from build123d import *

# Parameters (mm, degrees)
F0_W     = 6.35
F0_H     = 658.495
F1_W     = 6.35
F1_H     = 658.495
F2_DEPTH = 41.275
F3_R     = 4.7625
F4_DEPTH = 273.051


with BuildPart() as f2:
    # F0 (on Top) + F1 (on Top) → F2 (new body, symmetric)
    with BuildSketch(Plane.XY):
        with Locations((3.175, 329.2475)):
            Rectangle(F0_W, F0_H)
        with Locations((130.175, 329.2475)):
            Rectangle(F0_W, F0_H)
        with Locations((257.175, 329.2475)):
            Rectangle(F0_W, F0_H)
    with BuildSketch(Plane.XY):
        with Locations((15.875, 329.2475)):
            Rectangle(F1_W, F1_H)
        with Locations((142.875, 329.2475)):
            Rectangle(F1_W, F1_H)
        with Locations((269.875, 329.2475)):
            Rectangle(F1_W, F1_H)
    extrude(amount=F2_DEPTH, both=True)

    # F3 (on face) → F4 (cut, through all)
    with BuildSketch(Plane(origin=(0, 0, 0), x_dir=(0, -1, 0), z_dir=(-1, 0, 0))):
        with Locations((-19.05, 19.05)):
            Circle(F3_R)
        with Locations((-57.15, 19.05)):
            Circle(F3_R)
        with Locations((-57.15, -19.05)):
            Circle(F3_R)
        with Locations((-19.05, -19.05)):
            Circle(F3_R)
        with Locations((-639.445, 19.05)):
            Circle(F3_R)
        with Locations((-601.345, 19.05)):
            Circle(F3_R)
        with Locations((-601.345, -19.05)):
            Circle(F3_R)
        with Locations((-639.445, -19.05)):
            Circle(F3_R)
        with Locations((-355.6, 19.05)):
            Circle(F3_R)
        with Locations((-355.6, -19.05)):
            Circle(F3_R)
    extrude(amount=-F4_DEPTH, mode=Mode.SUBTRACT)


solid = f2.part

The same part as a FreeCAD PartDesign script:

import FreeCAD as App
import Part
import Sketcher

V = App.Vector
Q = App.Units.Quantity

doc = App.newDocument("Part")
body = doc.addObject("PartDesign::Body", "Body")
body.AllowCompound = True

# Sketch on XY plane
sketch1 = body.newObject("Sketcher::SketchObject", "Sketch")
sketch1.AttachmentSupport = (doc.getObject("XY_Plane"), [""])
sketch1.MapMode = "FlatFace"
sketch1.addGeometry(Part.LineSegment(V(0, 658, 0), V(0, 0, 0)), False)
sketch1.addGeometry(Part.LineSegment(V(0, 0, 0), V(6, 0, 0)), False)
sketch1.addGeometry(Part.LineSegment(V(6, 0, 0), V(6, 658, 0)), False)
sketch1.addGeometry(Part.LineSegment(V(6, 658, 0), V(0, 658, 0)), False)
sketch1.addGeometry(Part.LineSegment(V(127, 658, 0), V(127, 0, 0)), False)
sketch1.addGeometry(Part.LineSegment(V(127, 0, 0), V(133, 0, 0)), False)
sketch1.addGeometry(Part.LineSegment(V(133, 0, 0), V(133, 658, 0)), False)
sketch1.addGeometry(Part.LineSegment(V(133, 658, 0), V(127, 658, 0)), False)
sketch1.addGeometry(Part.LineSegment(V(254, 658, 0), V(254, 0, 0)), False)
sketch1.addGeometry(Part.LineSegment(V(254, 0, 0), V(260, 0, 0)), False)
sketch1.addGeometry(Part.LineSegment(V(260, 0, 0), V(260, 658, 0)), False)
sketch1.addGeometry(Part.LineSegment(V(260, 658, 0), V(254, 658, 0)), False)
sketch1.addGeometry(Part.LineSegment(V(13, 658, 0), V(13, 0, 0)), False)
sketch1.addGeometry(Part.LineSegment(V(13, 0, 0), V(19, 0, 0)), False)
sketch1.addGeometry(Part.LineSegment(V(19, 0, 0), V(19, 658, 0)), False)
sketch1.addGeometry(Part.LineSegment(V(19, 658, 0), V(13, 658, 0)), False)
sketch1.addGeometry(Part.LineSegment(V(140, 658, 0), V(140, 0, 0)), False)
sketch1.addGeometry(Part.LineSegment(V(140, 0, 0), V(146, 0, 0)), False)
sketch1.addGeometry(Part.LineSegment(V(146, 0, 0), V(146, 658, 0)), False)
sketch1.addGeometry(Part.LineSegment(V(146, 658, 0), V(140, 658, 0)), False)
sketch1.addGeometry(Part.LineSegment(V(267, 658, 0), V(267, 0, 0)), False)
sketch1.addGeometry(Part.LineSegment(V(267, 0, 0), V(273, 0, 0)), False)
sketch1.addGeometry(Part.LineSegment(V(273, 0, 0), V(273, 658, 0)), False)
sketch1.addGeometry(Part.LineSegment(V(273, 658, 0), V(267, 658, 0)), False)
sketch1.addConstraint(Sketcher.Constraint("Coincident", 0, 2, 1, 1))
sketch1.addConstraint(Sketcher.Constraint("Coincident", 1, 2, 2, 1))
sketch1.addConstraint(Sketcher.Constraint("Coincident", 2, 2, 3, 1))
sketch1.addConstraint(Sketcher.Constraint("Coincident", 3, 2, 0, 1))
sketch1.addConstraint(Sketcher.Constraint("Coincident", 4, 2, 5, 1))
sketch1.addConstraint(Sketcher.Constraint("Coincident", 5, 2, 6, 1))
sketch1.addConstraint(Sketcher.Constraint("Coincident", 6, 2, 7, 1))
sketch1.addConstraint(Sketcher.Constraint("Coincident", 7, 2, 4, 1))
sketch1.addConstraint(Sketcher.Constraint("Coincident", 8, 2, 9, 1))
sketch1.addConstraint(Sketcher.Constraint("Coincident", 9, 2, 10, 1))
sketch1.addConstraint(Sketcher.Constraint("Coincident", 10, 2, 11, 1))
sketch1.addConstraint(Sketcher.Constraint("Coincident", 11, 2, 8, 1))
sketch1.addConstraint(Sketcher.Constraint("Coincident", 12, 2, 13, 1))
sketch1.addConstraint(Sketcher.Constraint("Coincident", 13, 2, 14, 1))
sketch1.addConstraint(Sketcher.Constraint("Coincident", 14, 2, 15, 1))
sketch1.addConstraint(Sketcher.Constraint("Coincident", 15, 2, 12, 1))
sketch1.addConstraint(Sketcher.Constraint("Coincident", 16, 2, 17, 1))
sketch1.addConstraint(Sketcher.Constraint("Coincident", 17, 2, 18, 1))
sketch1.addConstraint(Sketcher.Constraint("Coincident", 18, 2, 19, 1))
sketch1.addConstraint(Sketcher.Constraint("Coincident", 19, 2, 16, 1))
sketch1.addConstraint(Sketcher.Constraint("Coincident", 20, 2, 21, 1))
sketch1.addConstraint(Sketcher.Constraint("Coincident", 21, 2, 22, 1))
sketch1.addConstraint(Sketcher.Constraint("Coincident", 22, 2, 23, 1))
sketch1.addConstraint(Sketcher.Constraint("Coincident", 23, 2, 20, 1))
sketch1.addConstraint(Sketcher.Constraint("Vertical", 0))
sketch1.addConstraint(Sketcher.Constraint("Horizontal", 1))
sketch1.addConstraint(Sketcher.Constraint("Vertical", 2))
sketch1.addConstraint(Sketcher.Constraint("Horizontal", 3))
sketch1.addConstraint(Sketcher.Constraint("Vertical", 4))
sketch1.addConstraint(Sketcher.Constraint("Horizontal", 5))
sketch1.addConstraint(Sketcher.Constraint("Vertical", 6))
sketch1.addConstraint(Sketcher.Constraint("Horizontal", 7))
sketch1.addConstraint(Sketcher.Constraint("Vertical", 8))
sketch1.addConstraint(Sketcher.Constraint("Horizontal", 9))
sketch1.addConstraint(Sketcher.Constraint("Vertical", 10))
sketch1.addConstraint(Sketcher.Constraint("Horizontal", 11))
sketch1.addConstraint(Sketcher.Constraint("Vertical", 12))
sketch1.addConstraint(Sketcher.Constraint("Horizontal", 13))
sketch1.addConstraint(Sketcher.Constraint("Vertical", 14))
sketch1.addConstraint(Sketcher.Constraint("Horizontal", 15))
sketch1.addConstraint(Sketcher.Constraint("Vertical", 16))
sketch1.addConstraint(Sketcher.Constraint("Horizontal", 17))
sketch1.addConstraint(Sketcher.Constraint("Vertical", 18))
sketch1.addConstraint(Sketcher.Constraint("Horizontal", 19))
sketch1.addConstraint(Sketcher.Constraint("Vertical", 20))
sketch1.addConstraint(Sketcher.Constraint("Horizontal", 21))
sketch1.addConstraint(Sketcher.Constraint("Vertical", 22))
sketch1.addConstraint(Sketcher.Constraint("Horizontal", 23))
sketch1.addConstraint(Sketcher.Constraint("Coincident", 0, 2, -1, 1))
sketch1.addConstraint(Sketcher.Constraint("PointOnObject", 4, 2, -1))
sketch1.addConstraint(Sketcher.Constraint("PointOnObject", 8, 2, -1))
sketch1.addConstraint(Sketcher.Constraint("PointOnObject", 12, 2, -1))
sketch1.addConstraint(Sketcher.Constraint("PointOnObject", 16, 2, -1))
sketch1.addConstraint(Sketcher.Constraint("PointOnObject", 20, 2, -1))
sketch1.addConstraint(Sketcher.Constraint("Horizontal", 3, 2, 6, 2))
sketch1.addConstraint(Sketcher.Constraint("Horizontal", 7, 2, 10, 2))
sketch1.addConstraint(Sketcher.Constraint("Horizontal", 11, 2, 14, 2))
sketch1.addConstraint(Sketcher.Constraint("Horizontal", 15, 2, 18, 2))
sketch1.addConstraint(Sketcher.Constraint("Horizontal", 19, 2, 22, 2))
sketch1.addConstraint(Sketcher.Constraint("Equal", 3, 5))
sketch1.addConstraint(Sketcher.Constraint("Equal", 7, 9))
sketch1.addConstraint(Sketcher.Constraint("Equal", 11, 13))
sketch1.addConstraint(Sketcher.Constraint("Equal", 15, 17))
sketch1.addConstraint(Sketcher.Constraint("Equal", 19, 21))
sketch1.addConstraint(Sketcher.Constraint("DistanceX", -1, 1, 4, 2, Q("5 in")))
sketch1.addConstraint(Sketcher.Constraint("DistanceX", -1, 1, 8, 2, Q("10 in")))
sketch1.addConstraint(Sketcher.Constraint("DistanceX", 14, 2, 18, 2, Q("5 in")))
sketch1.addConstraint(Sketcher.Constraint("DistanceX", 16, 2, 20, 2, Q("5 in")))
sketch1.addConstraint(Sketcher.Constraint("DistanceX", 1, 1, 1, 2, Q("0.25 in")))
sketch1.addConstraint(Sketcher.Constraint("DistanceX", -1, 1, 12, 2, Q("0.5 in")))
sketch1.addConstraint(Sketcher.Constraint("DistanceY", 0, 2, 0, 1, Q("25.925 in")))
pad1 = body.newObject("PartDesign::Pad", "Pad")
pad1.Profile = sketch1
pad1.Length = Q("3.25 in")
pad1.Midplane = True

# Sketch on YZ plane
sketch2 = body.newObject("Sketcher::SketchObject", "Sketch001")
sketch2.AttachmentSupport = (doc.getObject("YZ_Plane"), [""])
sketch2.MapMode = "FlatFace"
sketch2.addGeometry(Part.Circle(V(19.1, 19.1, 0), V(0, 0, 1), 4.8), False)
sketch2.addGeometry(Part.Circle(V(57.1, 19.1, 0), V(0, 0, 1), 4.8), False)
sketch2.addGeometry(Part.Circle(V(57.1, -19.1, 0), V(0, 0, 1), 4.8), False)
sketch2.addGeometry(Part.Circle(V(19.1, -19.1, 0), V(0, 0, 1), 4.8), False)
sketch2.addGeometry(Part.Circle(V(639.4, 19.1, 0), V(0, 0, 1), 4.8), False)
sketch2.addGeometry(Part.Circle(V(601.3, 19.1, 0), V(0, 0, 1), 4.8), False)
sketch2.addGeometry(Part.Circle(V(601.3, -19.1, 0), V(0, 0, 1), 4.8), False)
sketch2.addGeometry(Part.Circle(V(639.4, -19.1, 0), V(0, 0, 1), 4.8), False)
sketch2.addGeometry(Part.Circle(V(355.6, 19.1, 0), V(0, 0, 1), 4.8), False)
sketch2.addGeometry(Part.Circle(V(355.6, -19.1, 0), V(0, 0, 1), 4.8), False)
sketch2.addConstraint(Sketcher.Constraint("Equal", 0, 1))
sketch2.addConstraint(Sketcher.Constraint("Equal", 1, 2))
sketch2.addConstraint(Sketcher.Constraint("Equal", 2, 3))
sketch2.addConstraint(Sketcher.Constraint("Equal", 3, 4))
sketch2.addConstraint(Sketcher.Constraint("Equal", 4, 5))
sketch2.addConstraint(Sketcher.Constraint("Equal", 5, 6))
sketch2.addConstraint(Sketcher.Constraint("Equal", 6, 7))
sketch2.addConstraint(Sketcher.Constraint("Equal", 7, 8))
sketch2.addConstraint(Sketcher.Constraint("Equal", 8, 9))
sketch2.addConstraint(Sketcher.Constraint("Symmetric", 1, 3, 2, 3, -1))
sketch2.addConstraint(Sketcher.Constraint("Symmetric", 0, 3, 3, 3, -1))
sketch2.addConstraint(Sketcher.Constraint("Symmetric", 5, 3, 6, 3, -1))
sketch2.addConstraint(Sketcher.Constraint("Symmetric", 4, 3, 7, 3, -1))
sketch2.addConstraint(Sketcher.Constraint("Symmetric", 8, 3, 9, 3, -1))
sketch2.addConstraint(Sketcher.Constraint("Horizontal", 0, 3, 1, 3))
sketch2.addConstraint(Sketcher.Constraint("Horizontal", 1, 3, 4, 3))
sketch2.addConstraint(Sketcher.Constraint("Horizontal", 4, 3, 5, 3))
sketch2.addConstraint(Sketcher.Constraint("Horizontal", 5, 3, 8, 3))
sketch2.addConstraint(Sketcher.Constraint("Diameter", 0, Q("0.375 in")))
sketch2.addConstraint(Sketcher.Constraint("DistanceX", -1, 1, 8, 3, Q("14 in")))
sketch2.addConstraint(Sketcher.Constraint("DistanceX", 0, 3, 1, 3, Q("1.5 in")))
sketch2.addConstraint(Sketcher.Constraint("DistanceY", 2, 3, 1, 3, Q("1.5 in")))
sketch2.addConstraint(Sketcher.Constraint("DistanceX", 5, 3, 4, 3, Q("1.5 in")))
sketch2.addConstraint(Sketcher.Constraint("DistanceX", -1, 1, 0, 3, Q("0.75 in")))
sketch2.addConstraint(Sketcher.Constraint("DistanceX", -1, 1, 4, 3, Q("25.175 in")))
pocket1 = body.newObject("PartDesign::Pocket", "Pocket")
pocket1.Profile = sketch2
pocket1.Type = "ThroughAll"
pocket1.Reversed = True

doc.recompute()
